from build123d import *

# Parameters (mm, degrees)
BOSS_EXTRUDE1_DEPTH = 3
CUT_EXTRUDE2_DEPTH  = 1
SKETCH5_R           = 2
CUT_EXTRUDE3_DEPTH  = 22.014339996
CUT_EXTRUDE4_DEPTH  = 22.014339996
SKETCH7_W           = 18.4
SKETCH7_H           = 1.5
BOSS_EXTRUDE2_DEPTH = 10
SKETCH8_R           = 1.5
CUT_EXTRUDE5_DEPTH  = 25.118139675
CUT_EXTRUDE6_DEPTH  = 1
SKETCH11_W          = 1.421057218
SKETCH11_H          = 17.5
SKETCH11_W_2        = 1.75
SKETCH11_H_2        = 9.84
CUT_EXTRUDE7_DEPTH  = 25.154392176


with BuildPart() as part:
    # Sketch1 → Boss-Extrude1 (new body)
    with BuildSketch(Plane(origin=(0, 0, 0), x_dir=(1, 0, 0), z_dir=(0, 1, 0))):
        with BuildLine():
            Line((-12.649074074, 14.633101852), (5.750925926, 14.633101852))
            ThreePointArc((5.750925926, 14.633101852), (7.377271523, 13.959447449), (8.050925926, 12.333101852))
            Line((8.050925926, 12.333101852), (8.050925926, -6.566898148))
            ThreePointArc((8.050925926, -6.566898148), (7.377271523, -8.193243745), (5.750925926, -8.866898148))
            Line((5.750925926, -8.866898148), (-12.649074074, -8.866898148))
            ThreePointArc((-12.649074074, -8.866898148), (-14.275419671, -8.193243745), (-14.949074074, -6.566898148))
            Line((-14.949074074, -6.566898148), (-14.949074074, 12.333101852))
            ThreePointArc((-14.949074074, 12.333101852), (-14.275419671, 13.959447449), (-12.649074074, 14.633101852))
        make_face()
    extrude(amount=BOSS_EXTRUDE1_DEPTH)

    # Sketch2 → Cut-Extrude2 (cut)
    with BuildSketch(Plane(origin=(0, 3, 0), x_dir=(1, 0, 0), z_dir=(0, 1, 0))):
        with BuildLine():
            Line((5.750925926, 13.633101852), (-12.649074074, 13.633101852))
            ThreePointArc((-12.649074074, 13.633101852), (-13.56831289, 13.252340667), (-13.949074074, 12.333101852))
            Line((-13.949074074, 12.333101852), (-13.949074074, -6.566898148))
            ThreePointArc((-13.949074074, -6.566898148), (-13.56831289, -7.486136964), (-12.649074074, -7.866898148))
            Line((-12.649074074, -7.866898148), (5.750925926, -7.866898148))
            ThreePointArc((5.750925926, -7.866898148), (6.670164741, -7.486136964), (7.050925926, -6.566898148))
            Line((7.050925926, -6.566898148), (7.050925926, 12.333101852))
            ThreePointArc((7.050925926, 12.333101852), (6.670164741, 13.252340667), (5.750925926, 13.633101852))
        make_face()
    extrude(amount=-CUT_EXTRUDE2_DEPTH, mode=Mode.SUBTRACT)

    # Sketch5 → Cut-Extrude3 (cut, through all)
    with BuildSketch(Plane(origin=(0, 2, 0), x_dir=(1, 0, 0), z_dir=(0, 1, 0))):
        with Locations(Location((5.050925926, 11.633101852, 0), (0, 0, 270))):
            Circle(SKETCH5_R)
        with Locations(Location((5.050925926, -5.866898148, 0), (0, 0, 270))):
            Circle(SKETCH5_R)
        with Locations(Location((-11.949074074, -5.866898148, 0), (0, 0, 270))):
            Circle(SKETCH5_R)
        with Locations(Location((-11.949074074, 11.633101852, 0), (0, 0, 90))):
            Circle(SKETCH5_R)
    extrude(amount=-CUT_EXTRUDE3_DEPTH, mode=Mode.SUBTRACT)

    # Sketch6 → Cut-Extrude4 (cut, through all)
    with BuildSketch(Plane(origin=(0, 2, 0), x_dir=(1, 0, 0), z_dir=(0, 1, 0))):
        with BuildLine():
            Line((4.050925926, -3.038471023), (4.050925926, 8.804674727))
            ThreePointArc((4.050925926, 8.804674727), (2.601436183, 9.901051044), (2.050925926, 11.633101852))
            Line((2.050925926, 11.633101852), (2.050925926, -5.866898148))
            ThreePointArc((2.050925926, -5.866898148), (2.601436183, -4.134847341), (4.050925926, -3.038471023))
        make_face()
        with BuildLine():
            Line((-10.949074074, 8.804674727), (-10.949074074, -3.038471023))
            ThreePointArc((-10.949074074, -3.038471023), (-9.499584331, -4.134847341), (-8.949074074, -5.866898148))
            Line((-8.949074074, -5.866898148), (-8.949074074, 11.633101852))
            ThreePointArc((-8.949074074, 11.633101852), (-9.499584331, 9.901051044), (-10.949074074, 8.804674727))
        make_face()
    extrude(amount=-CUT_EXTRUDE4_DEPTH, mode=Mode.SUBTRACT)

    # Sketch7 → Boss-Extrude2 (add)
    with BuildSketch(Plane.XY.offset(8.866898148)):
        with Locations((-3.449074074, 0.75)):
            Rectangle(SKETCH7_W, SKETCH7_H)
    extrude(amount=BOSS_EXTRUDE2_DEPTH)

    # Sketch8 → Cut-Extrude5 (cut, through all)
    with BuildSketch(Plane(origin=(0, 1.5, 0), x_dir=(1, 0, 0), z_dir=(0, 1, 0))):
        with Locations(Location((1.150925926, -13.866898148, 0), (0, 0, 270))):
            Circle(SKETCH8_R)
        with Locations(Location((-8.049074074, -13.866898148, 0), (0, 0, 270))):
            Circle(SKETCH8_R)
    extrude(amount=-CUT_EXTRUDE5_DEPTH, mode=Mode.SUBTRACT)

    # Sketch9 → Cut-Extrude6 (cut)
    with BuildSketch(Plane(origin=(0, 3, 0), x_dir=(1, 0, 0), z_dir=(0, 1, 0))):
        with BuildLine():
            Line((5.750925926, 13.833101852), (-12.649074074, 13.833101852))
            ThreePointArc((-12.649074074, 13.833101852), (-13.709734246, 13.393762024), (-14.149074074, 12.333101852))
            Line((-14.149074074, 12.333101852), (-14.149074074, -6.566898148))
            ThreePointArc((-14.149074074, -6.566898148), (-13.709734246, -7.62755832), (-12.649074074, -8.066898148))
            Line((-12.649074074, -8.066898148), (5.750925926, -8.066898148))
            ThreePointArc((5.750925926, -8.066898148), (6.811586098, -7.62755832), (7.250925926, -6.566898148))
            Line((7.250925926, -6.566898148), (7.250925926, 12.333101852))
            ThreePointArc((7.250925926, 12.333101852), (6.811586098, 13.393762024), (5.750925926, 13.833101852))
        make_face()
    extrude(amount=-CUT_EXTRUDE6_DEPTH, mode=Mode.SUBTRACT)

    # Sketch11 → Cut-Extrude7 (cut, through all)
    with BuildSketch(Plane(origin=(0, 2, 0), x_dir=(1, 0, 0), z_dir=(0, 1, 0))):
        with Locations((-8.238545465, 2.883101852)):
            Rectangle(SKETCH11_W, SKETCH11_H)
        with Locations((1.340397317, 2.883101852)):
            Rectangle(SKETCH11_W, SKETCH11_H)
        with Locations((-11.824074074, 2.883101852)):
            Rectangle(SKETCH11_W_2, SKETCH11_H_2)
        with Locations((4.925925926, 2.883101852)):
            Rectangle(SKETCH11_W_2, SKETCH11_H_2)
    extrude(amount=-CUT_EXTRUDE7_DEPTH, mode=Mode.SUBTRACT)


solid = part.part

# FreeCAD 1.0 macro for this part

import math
import FreeCAD as App
import Part
import Sketcher

doc = App.newDocument("Part")
body = doc.addObject("PartDesign::Body", "Body")

# Sketch on XZ plane
sketch1 = body.newObject("Sketcher::SketchObject", "Sketch")
sketch1.AttachmentSupport = (doc.getObject("XZ_Plane"), [""])
sketch1.MapMode = "FlatFace"
sketch1.addGeometry([
    Part.LineSegment(App.Vector(5.8, -14.6, 0), App.Vector(-12.6, -14.6, 0)),  # 0
    Part.ArcOfCircle(Part.Circle(App.Vector(-12.6, -12.3, 0), App.Vector(0, 0, 1), 2.3), math.radians(180), math.radians(270)),  # 1
    Part.LineSegment(App.Vector(-14.9, -12.3, 0), App.Vector(-14.9, 6.6, 0)),  # 2
    Part.ArcOfCircle(Part.Circle(App.Vector(-12.6, 6.6, 0), App.Vector(0, 0, 1), 2.3), math.radians(90), math.radians(180)),  # 3
    Part.LineSegment(App.Vector(-12.6, 8.9, 0), App.Vector(5.8, 8.9, 0)),  # 4
    Part.ArcOfCircle(Part.Circle(App.Vector(5.8, 6.6, 0), App.Vector(0, 0, 1), 2.3), math.radians(0), math.radians(90)),  # 5
    Part.LineSegment(App.Vector(8.1, 6.6, 0), App.Vector(8.1, -12.3, 0)),  # 6
    Part.ArcOfCircle(Part.Circle(App.Vector(5.8, -12.3, 0), App.Vector(0, 0, 1), 2.3), math.radians(-90), math.radians(0)),  # 7
], False)
sketch1.addConstraint([
    Sketcher.Constraint("Tangent", 0, 2, 1, 2),
    Sketcher.Constraint("Tangent", 1, 1, 2, 1),
    Sketcher.Constraint("Tangent", 2, 2, 3, 2),
    Sketcher.Constraint("Tangent", 3, 1, 4, 1),
    Sketcher.Constraint("Tangent", 4, 2, 5, 2),
    Sketcher.Constraint("Tangent", 5, 1, 6, 1),
    Sketcher.Constraint("Tangent", 6, 2, 7, 2),
    Sketcher.Constraint("Tangent", 7, 1, 0, 1),
    Sketcher.Constraint("Horizontal", 0),
    Sketcher.Constraint("Vertical", 2),
    Sketcher.Constraint("Horizontal", 4),
    Sketcher.Constraint("Vertical", 6),
    Sketcher.Constraint("Equal", 1, 3),
    Sketcher.Constraint("Equal", 3, 5),
    Sketcher.Constraint("Equal", 5, 7),
    Sketcher.Constraint("Radius", 1, 2.3),
    Sketcher.Constraint("DistanceX", 0, 2, 0, 1, 18.4),
    Sketcher.Constraint("DistanceY", 2, 1, 2, 2, 18.9),
    Sketcher.Constraint("DistanceY", 1, 3, -1, 1, 12.333102),
    Sketcher.Constraint("DistanceX", 1, 3, -1, 1, 12.649074),
])
pad1 = body.newObject("PartDesign::Pad", "Pad")
pad1.Profile = sketch1
pad1.Length = 3
pad1.Reversed = True

# Sketch on XZ plane
sketch2 = body.newObject("Sketcher::SketchObject", "Sketch001")
sketch2.AttachmentSupport = (doc.getObject("XZ_Plane"), [""])
sketch2.MapMode = "FlatFace"
sketch2.AttachmentOffset = App.Placement(App.Vector(0, 0, -3), App.Rotation())
sketch2.addGeometry([
    Part.LineSegment(App.Vector(5.8, -13.6, 0), App.Vector(-12.6, -13.6, 0)),  # 0
    Part.ArcOfCircle(Part.Circle(App.Vector(-12.6, -12.3, 0), App.Vector(0, 0, 1), 1.3), math.radians(180), math.radians(270)),  # 1
    Part.LineSegment(App.Vector(-13.9, -12.3, 0), App.Vector(-13.9, 6.6, 0)),  # 2
    Part.ArcOfCircle(Part.Circle(App.Vector(-12.6, 6.6, 0), App.Vector(0, 0, 1), 1.3), math.radians(90), math.radians(180)),  # 3
    Part.LineSegment(App.Vector(-12.6, 7.9, 0), App.Vector(5.8, 7.9, 0)),  # 4
    Part.ArcOfCircle(Part.Circle(App.Vector(5.8, 6.6, 0), App.Vector(0, 0, 1), 1.3), math.radians(0), math.radians(90)),  # 5
    Part.LineSegment(App.Vector(7.1, 6.6, 0), App.Vector(7.1, -12.3, 0)),  # 6
    Part.ArcOfCircle(Part.Circle(App.Vector(5.8, -12.3, 0), App.Vector(0, 0, 1), 1.3), math.radians(-90), math.radians(0)),  # 7
], False)
sketch2.addConstraint([
    Sketcher.Constraint("Tangent", 0, 2, 1, 2),
    Sketcher.Constraint("Tangent", 1, 1, 2, 1),
    Sketcher.Constraint("Tangent", 2, 2, 3, 2),
    Sketcher.Constraint("Tangent", 3, 1, 4, 1),
    Sketcher.Constraint("Tangent", 4, 2, 5, 2),
    Sketcher.Constraint("Tangent", 5, 1, 6, 1),
    Sketcher.Constraint("Tangent", 6, 2, 7, 2),
    Sketcher.Constraint("Tangent", 7, 1, 0, 1),
    Sketcher.Constraint("Horizontal", 0),
    Sketcher.Constraint("Vertical", 2),
    Sketcher.Constraint("Horizontal", 4),
    Sketcher.Constraint("Vertical", 6),
    Sketcher.Constraint("Equal", 1, 3),
    Sketcher.Constraint("Equal", 3, 5),
    Sketcher.Constraint("Equal", 5, 7),
    Sketcher.Constraint("Radius", 1, 1.3),
    Sketcher.Constraint("DistanceX", 0, 2, 0, 1, 18.4),
    Sketcher.Constraint("DistanceY", 2, 1, 2, 2, 18.9),
    Sketcher.Constraint("DistanceY", 1, 3, -1, 1, 12.333102),
    Sketcher.Constraint("DistanceX", 1, 3, -1, 1, 12.649074),
])
pocket1 = body.newObject("PartDesign::Pocket", "Pocket")
pocket1.Profile = sketch2
pocket1.Length = 1
pocket1.Reversed = True

# Sketch on XZ plane
sketch3 = body.newObject("Sketcher::SketchObject", "Sketch002")
sketch3.AttachmentSupport = (doc.getObject("XZ_Plane"), [""])
sketch3.MapMode = "FlatFace"
sketch3.AttachmentOffset = App.Placement(App.Vector(0, 0, -2), App.Rotation())
sketch3.addGeometry([
    Part.Circle(App.Vector(5.1, -11.6, 0), App.Vector(0, 0, 1), 2),
    Part.Circle(App.Vector(5.1, 5.9, 0), App.Vector(0, 0, 1), 2),
    Part.Circle(App.Vector(-11.9, 5.9, 0), App.Vector(0, 0, 1), 2),
    Part.Circle(App.Vector(-11.9, -11.6, 0), App.Vector(0, 0, 1), 2),
], False)
sketch3.addConstraint([
    Sketcher.Constraint("Equal", 0, 1),
    Sketcher.Constraint("Equal", 1, 2),
    Sketcher.Constraint("Equal", 2, 3),
    Sketcher.Constraint("Horizontal", 1, 3, 2, 3),
    Sketcher.Constraint("Horizontal", 0, 3, 3, 3),
    Sketcher.Constraint("Vertical", 0, 3, 1, 3),
    Sketcher.Constraint("Vertical", 2, 3, 3, 3),
    Sketcher.Constraint("Diameter", 0, 4.0),
    Sketcher.Constraint("DistanceX", 2, 3, 1, 3, 17.0),
    Sketcher.Constraint("DistanceY", 0, 3, 1, 3, 17.5),
    Sketcher.Constraint("DistanceY", 0, 3, -1, 1, 11.633102),
    Sketcher.Constraint("DistanceX", -1, 1, 0, 3, 5.050926),
])
pocket2 = body.newObject("PartDesign::Pocket", "Pocket001")
pocket2.Profile = sketch3
pocket2.Type = "ThroughAll"
pocket2.Reversed = True

# Sketch on XZ plane
sketch4 = body.newObject("Sketcher::SketchObject", "Sketch003")
sketch4.AttachmentSupport = (doc.getObject("XZ_Plane"), [""])
sketch4.MapMode = "FlatFace"
sketch4.AttachmentOffset = App.Placement(App.Vector(0, 0, -2), App.Rotation())
sketch4.addGeometry([
    Part.LineSegment(App.Vector(4.1, 3, 0), App.Vector(4.1, -8.8, 0)),  # 0
    Part.ArcOfCircle(Part.Circle(App.Vector(5.1, -11.6, 0), App.Vector(0, 0, 1), 3), math.radians(109), math.radians(180)),  # 1
    Part.LineSegment(App.Vector(2.1, -11.6, 0), App.Vector(2.1, 5.9, 0)),  # 2
    Part.ArcOfCircle(Part.Circle(App.Vector(5.1, 5.9, 0), App.Vector(0, 0, 1), 3), math.radians(-180), math.radians(-109)),  # 3
    Part.LineSegment(App.Vector(-10.9, -8.8, 0), App.Vector(-10.9, 3, 0)),  # 4
    Part.ArcOfCircle(Part.Circle(App.Vector(-11.9, 5.9, 0), App.Vector(0, 0, 1), 3), math.radians(-71), math.radians(0)),  # 5
    Part.LineSegment(App.Vector(-8.9, 5.9, 0), App.Vector(-8.9, -11.6, 0)),  # 6
    Part.ArcOfCircle(Part.Circle(App.Vector(-11.9, -11.6, 0), App.Vector(0, 0, 1), 3), math.radians(0), math.radians(71)),  # 7
], False)
sketch4.addConstraint([
    Sketcher.Constraint("Coincident", 0, 2, 1, 1),
    Sketcher.Constraint("Tangent", 1, 2, 2, 1),
    Sketcher.Constraint("Tangent", 2, 2, 3, 1),
    Sketcher.Constraint("Coincident", 3, 2, 0, 1),
    Sketcher.Constraint("Coincident", 4, 2, 5, 1),
    Sketcher.Constraint("Tangent", 5, 2, 6, 1),
    Sketcher.Constraint("Tangent", 6, 2, 7, 1),
    Sketcher.Constraint("Coincident", 7, 2, 4, 1),
    Sketcher.Constraint("Vertical", 0),
    Sketcher.Constraint("Vertical", 2),
    Sketcher.Constraint("Vertical", 4),
    Sketcher.Constraint("Vertical", 6),
    Sketcher.Constraint("Equal", 1, 3),
    Sketcher.Constraint("Equal", 3, 5),
    Sketcher.Constraint("Equal", 5, 7),
    Sketcher.Constraint("Horizontal", 3, 3, 5, 3),
    Sketcher.Constraint("Horizontal", 1, 3, 7, 3),
    Sketcher.Constraint("Horizontal", 3, 2, 4, 2),
    Sketcher.Constraint("Radius", 1, 3.0),
    Sketcher.Constraint("DistanceY", 2, 1, 2, 2, 17.5),
    Sketcher.Constraint("DistanceX", 5, 3, 3, 3, 17.0),
    Sketcher.Constraint("DistanceX", 0, 2, 1, 3, 1.0),
    Sketcher.Constraint("DistanceY", 1, 3, -1, 1, 11.633102),
    Sketcher.Constraint("DistanceX", -1, 1, 1, 3, 5.050926),
])
pocket3 = body.newObject("PartDesign::Pocket", "Pocket002")
pocket3.Profile = sketch4
pocket3.Type = "ThroughAll"
pocket3.Reversed = True

# Sketch on XY plane
sketch5 = body.newObject("Sketcher::SketchObject", "Sketch004")
sketch5.AttachmentSupport = (doc.getObject("XY_Plane"), [""])
sketch5.MapMode = "FlatFace"
sketch5.AttachmentOffset = App.Placement(App.Vector(0, 0, 8.866898), App.Rotation())
sketch5.addGeometry([
    Part.LineSegment(App.Vector(-12.6, 1.5, 0), App.Vector(-12.6, 0, 0)),
    Part.LineSegment(App.Vector(-12.6, 0, 0), App.Vector(5.8, 0, 0)),
    Part.LineSegment(App.Vector(5.8, 0, 0), App.Vector(5.8, 1.5, 0)),
    Part.LineSegment(App.Vector(5.8, 1.5, 0), App.Vector(-12.6, 1.5, 0)),
], False)
sketch5.addConstraint([
    Sketcher.Constraint("Coincident", 0, 2, 1, 1),
    Sketcher.Constraint("Coincident", 1, 2, 2, 1),
    Sketcher.Constraint("Coincident", 2, 2, 3, 1),
    Sketcher.Constraint("Coincident", 3, 2, 0, 1),
    Sketcher.Constraint("Vertical", 0),
    Sketcher.Constraint("Horizontal", 1),
    Sketcher.Constraint("Vertical", 2),
    Sketcher.Constraint("Horizontal", 3),
    Sketcher.Constraint("PointOnObject", 0, 2, -1),
    Sketcher.Constraint("DistanceX", 1, 1, 1, 2, 18.4),
    Sketcher.Constraint("DistanceY", 0, 2, 0, 1, 1.5),
    Sketcher.Constraint("DistanceX", 0, 2, -1, 1, 12.649074),
])
pad2 = body.newObject("PartDesign::Pad", "Pad001")
pad2.Profile = sketch5
pad2.Length = 10

# Sketch on XZ plane
sketch6 = body.newObject("Sketcher::SketchObject", "Sketch005")
sketch6.AttachmentSupport = (doc.getObject("XZ_Plane"), [""])
sketch6.MapMode = "FlatFace"
sketch6.AttachmentOffset = App.Placement(App.Vector(0, 0, -1.5), App.Rotation())
sketch6.addGeometry([
    Part.Circle(App.Vector(1.2, 13.9, 0), App.Vector(0, 0, 1), 1.5),
    Part.Circle(App.Vector(-8, 13.9, 0), App.Vector(0, 0, 1), 1.5),
], False)
sketch6.addConstraint([
    Sketcher.Constraint("Equal", 0, 1),
    Sketcher.Constraint("Horizontal", 0, 3, 1, 3),
    Sketcher.Constraint("Diameter", 0, 3.0),
    Sketcher.Constraint("DistanceX", 1, 3, 0, 3, 9.2),
    Sketcher.Constraint("DistanceY", -1, 1, 0, 3, 13.866898),
    Sketcher.Constraint("DistanceX", -1, 1, 0, 3, 1.150926),
])
pocket4 = body.newObject("PartDesign::Pocket", "Pocket003")
pocket4.Profile = sketch6
pocket4.Type = "ThroughAll"
pocket4.Reversed = True

# Sketch on XZ plane
sketch7 = body.newObject("Sketcher::SketchObject", "Sketch006")
sketch7.AttachmentSupport = (doc.getObject("XZ_Plane"), [""])
sketch7.MapMode = "FlatFace"
sketch7.AttachmentOffset = App.Placement(App.Vector(0, 0, -3), App.Rotation())
sketch7.addGeometry([
    Part.LineSegment(App.Vector(5.8, -13.8, 0), App.Vector(-12.6, -13.8, 0)),  # 0
    Part.ArcOfCircle(Part.Circle(App.Vector(-12.6, -12.3, 0), App.Vector(0, 0, 1), 1.5), math.radians(180), math.radians(270)),  # 1
    Part.LineSegment(App.Vector(-14.1, -12.3, 0), App.Vector(-14.1, 6.6, 0)),  # 2
    Part.ArcOfCircle(Part.Circle(App.Vector(-12.6, 6.6, 0), App.Vector(0, 0, 1), 1.5), math.radians(90), math.radians(180)),  # 3
    Part.LineSegment(App.Vector(-12.6, 8.1, 0), App.Vector(5.8, 8.1, 0)),  # 4
    Part.ArcOfCircle(Part.Circle(App.Vector(5.8, 6.6, 0), App.Vector(0, 0, 1), 1.5), math.radians(0), math.radians(90)),  # 5
    Part.LineSegment(App.Vector(7.3, 6.6, 0), App.Vector(7.3, -12.3, 0)),  # 6
    Part.ArcOfCircle(Part.Circle(App.Vector(5.8, -12.3, 0), App.Vector(0, 0, 1), 1.5), math.radians(-90), math.radians(0)),  # 7
], False)
sketch7.addConstraint([
    Sketcher.Constraint("Tangent", 0, 2, 1, 2),
    Sketcher.Constraint("Tangent", 1, 1, 2, 1),
    Sketcher.Constraint("Tangent", 2, 2, 3, 2),
    Sketcher.Constraint("Tangent", 3, 1, 4, 1),
    Sketcher.Constraint("Tangent", 4, 2, 5, 2),
    Sketcher.Constraint("Tangent", 5, 1, 6, 1),
    Sketcher.Constraint("Tangent", 6, 2, 7, 2),
    Sketcher.Constraint("Tangent", 7, 1, 0, 1),
    Sketcher.Constraint("Horizontal", 0),
    Sketcher.Constraint("Vertical", 2),
    Sketcher.Constraint("Horizontal", 4),
    Sketcher.Constraint("Vertical", 6),
    Sketcher.Constraint("Equal", 1, 3),
    Sketcher.Constraint("Equal", 3, 5),
    Sketcher.Constraint("Equal", 5, 7),
    Sketcher.Constraint("Radius", 1, 1.5),
    Sketcher.Constraint("DistanceX", 0, 2, 0, 1, 18.4),
    Sketcher.Constraint("DistanceY", 2, 1, 2, 2, 18.9),
    Sketcher.Constraint("DistanceY", 1, 3, -1, 1, 12.333102),
    Sketcher.Constraint("DistanceX", 1, 3, -1, 1, 12.649074),
])
pocket5 = body.newObject("PartDesign::Pocket", "Pocket004")
pocket5.Profile = sketch7
pocket5.Length = 1
pocket5.Reversed = True

# Sketch on XZ plane
sketch8 = body.newObject("Sketcher::SketchObject", "Sketch007")
sketch8.AttachmentSupport = (doc.getObject("XZ_Plane"), [""])
sketch8.MapMode = "FlatFace"
sketch8.AttachmentOffset = App.Placement(App.Vector(0, 0, -2), App.Rotation())
sketch8.addGeometry([
    Part.LineSegment(App.Vector(-8.9, -11.6, 0), App.Vector(-8.9, 5.9, 0)),  # 0
    Part.LineSegment(App.Vector(-8.9, 5.9, 0), App.Vector(-7.5, 5.9, 0)),  # 1
    Part.LineSegment(App.Vector(-7.5, 5.9, 0), App.Vector(-7.5, -11.6, 0)),  # 2
    Part.LineSegment(App.Vector(-7.5, -11.6, 0), App.Vector(-8.9, -11.6, 0)),  # 3
    Part.LineSegment(App.Vector(0.6, -11.6, 0), App.Vector(0.6, 5.9, 0)),  # 4
    Part.LineSegment(App.Vector(0.6, 5.9, 0), App.Vector(2.1, 5.9, 0)),  # 5
    Part.LineSegment(App.Vector(2.1, 5.9, 0), App.Vector(2.1, -11.6, 0)),  # 6
    Part.LineSegment(App.Vector(2.1, -11.6, 0), App.Vector(0.6, -11.6, 0)),  # 7
    Part.LineSegment(App.Vector(-12.7, -7.8, 0), App.Vector(-12.7, 2, 0)),  # 8
    Part.LineSegment(App.Vector(-12.7, 2, 0), App.Vector(-10.9, 2, 0)),  # 9
    Part.LineSegment(App.Vector(-10.9, 2, 0), App.Vector(-10.9, -7.8, 0)),  # 10
    Part.LineSegment(App.Vector(-10.9, -7.8, 0), App.Vector(-12.7, -7.8, 0)),  # 11
    Part.LineSegment(App.Vector(4.1, -7.8, 0), App.Vector(4.1, 2, 0)),  # 12
    Part.LineSegment(App.Vector(4.1, 2, 0), App.Vector(5.8, 2, 0)),  # 13
    Part.LineSegment(App.Vector(5.8, 2, 0), App.Vector(5.8, -7.8, 0)),  # 14
    Part.LineSegment(App.Vector(5.8, -7.8, 0), App.Vector(4.1, -7.8, 0)),  # 15
], False)
sketch8.addConstraint([
    Sketcher.Constraint("Coincident", 0, 2, 1, 1),
    Sketcher.Constraint("Coincident", 1, 2, 2, 1),
    Sketcher.Constraint("Coincident", 2, 2, 3, 1),
    Sketcher.Constraint("Coincident", 3, 2, 0, 1),
    Sketcher.Constraint("Coincident", 4, 2, 5, 1),
    Sketcher.Constraint("Coincident", 5, 2, 6, 1),
    Sketcher.Constraint("Coincident", 6, 2, 7, 1),
    Sketcher.Constraint("Coincident", 7, 2, 4, 1),
    Sketcher.Constraint("Coincident", 8, 2, 9, 1),
    Sketcher.Constraint("Coincident", 9, 2, 10, 1),
    Sketcher.Constraint("Coincident", 10, 2, 11, 1),
    Sketcher.Constraint("Coincident", 11, 2, 8, 1),
    Sketcher.Constraint("Coincident", 12, 2, 13, 1),
    Sketcher.Constraint("Coincident", 13, 2, 14, 1),
    Sketcher.Constraint("Coincident", 14, 2, 15, 1),
    Sketcher.Constraint("Coincident", 15, 2, 12, 1),
    Sketcher.Constraint("Vertical", 0),
    Sketcher.Constraint("Horizontal", 1),
    Sketcher.Constraint("Vertical", 2),
    Sketcher.Constraint("Horizontal", 3),
    Sketcher.Constraint("Vertical", 4),
    Sketcher.Constraint("Horizontal", 5),
    Sketcher.Constraint("Vertical", 6),
    Sketcher.Constraint("Horizontal", 7),
    Sketcher.Constraint("Vertical", 8),
    Sketcher.Constraint("Horizontal", 9),
    Sketcher.Constraint("Vertical", 10),
    Sketcher.Constraint("Horizontal", 11),
    Sketcher.Constraint("Vertical", 12),
    Sketcher.Constraint("Horizontal", 13),
    Sketcher.Constraint("Vertical", 14),
    Sketcher.Constraint("Horizontal", 15),
    Sketcher.Constraint("Horizontal", 1, 2, 4, 2),
    Sketcher.Constraint("Horizontal", 3, 2, 6, 2),
    Sketcher.Constraint("Horizontal", 9, 2, 12, 2),
    Sketcher.Constraint("Horizontal", 11, 2, 14, 2),
    Sketcher.Constraint("Equal", 3, 5),
    Sketcher.Constraint("Equal", 11, 13),
    Sketcher.Constraint("DistanceY", 0, 1, 0, 2, 17.5),
    Sketcher.Constraint("DistanceX", 0, 2, 5, 2, 11.0),
    Sketcher.Constraint("DistanceX", 9, 2, 0, 2, 2.0),
    Sketcher.Constraint("DistanceX", 5, 2, 12, 2, 2.0),
    Sketcher.Constraint("DistanceX", 9, 1, 9, 2, 1.75),
    Sketcher.Constraint("DistanceY", 8, 1, 8, 2, 9.84),
    Sketcher.Constraint("DistanceY", 8, 2, 0, 2, 3.83),
    Sketcher.Constraint("DistanceY", -1, 1, 0, 2, 5.866898),
    Sketcher.Constraint("DistanceX", 1, 1, 1, 2, 1.421057),
    Sketcher.Constraint("DistanceX", -1, 1, 4, 2, 0.629869),
])
pocket6 = body.newObject("PartDesign::Pocket", "Pocket005")
pocket6.Profile = sketch8
pocket6.Type = "ThroughAll"
pocket6.Reversed = True

doc.recompute()
